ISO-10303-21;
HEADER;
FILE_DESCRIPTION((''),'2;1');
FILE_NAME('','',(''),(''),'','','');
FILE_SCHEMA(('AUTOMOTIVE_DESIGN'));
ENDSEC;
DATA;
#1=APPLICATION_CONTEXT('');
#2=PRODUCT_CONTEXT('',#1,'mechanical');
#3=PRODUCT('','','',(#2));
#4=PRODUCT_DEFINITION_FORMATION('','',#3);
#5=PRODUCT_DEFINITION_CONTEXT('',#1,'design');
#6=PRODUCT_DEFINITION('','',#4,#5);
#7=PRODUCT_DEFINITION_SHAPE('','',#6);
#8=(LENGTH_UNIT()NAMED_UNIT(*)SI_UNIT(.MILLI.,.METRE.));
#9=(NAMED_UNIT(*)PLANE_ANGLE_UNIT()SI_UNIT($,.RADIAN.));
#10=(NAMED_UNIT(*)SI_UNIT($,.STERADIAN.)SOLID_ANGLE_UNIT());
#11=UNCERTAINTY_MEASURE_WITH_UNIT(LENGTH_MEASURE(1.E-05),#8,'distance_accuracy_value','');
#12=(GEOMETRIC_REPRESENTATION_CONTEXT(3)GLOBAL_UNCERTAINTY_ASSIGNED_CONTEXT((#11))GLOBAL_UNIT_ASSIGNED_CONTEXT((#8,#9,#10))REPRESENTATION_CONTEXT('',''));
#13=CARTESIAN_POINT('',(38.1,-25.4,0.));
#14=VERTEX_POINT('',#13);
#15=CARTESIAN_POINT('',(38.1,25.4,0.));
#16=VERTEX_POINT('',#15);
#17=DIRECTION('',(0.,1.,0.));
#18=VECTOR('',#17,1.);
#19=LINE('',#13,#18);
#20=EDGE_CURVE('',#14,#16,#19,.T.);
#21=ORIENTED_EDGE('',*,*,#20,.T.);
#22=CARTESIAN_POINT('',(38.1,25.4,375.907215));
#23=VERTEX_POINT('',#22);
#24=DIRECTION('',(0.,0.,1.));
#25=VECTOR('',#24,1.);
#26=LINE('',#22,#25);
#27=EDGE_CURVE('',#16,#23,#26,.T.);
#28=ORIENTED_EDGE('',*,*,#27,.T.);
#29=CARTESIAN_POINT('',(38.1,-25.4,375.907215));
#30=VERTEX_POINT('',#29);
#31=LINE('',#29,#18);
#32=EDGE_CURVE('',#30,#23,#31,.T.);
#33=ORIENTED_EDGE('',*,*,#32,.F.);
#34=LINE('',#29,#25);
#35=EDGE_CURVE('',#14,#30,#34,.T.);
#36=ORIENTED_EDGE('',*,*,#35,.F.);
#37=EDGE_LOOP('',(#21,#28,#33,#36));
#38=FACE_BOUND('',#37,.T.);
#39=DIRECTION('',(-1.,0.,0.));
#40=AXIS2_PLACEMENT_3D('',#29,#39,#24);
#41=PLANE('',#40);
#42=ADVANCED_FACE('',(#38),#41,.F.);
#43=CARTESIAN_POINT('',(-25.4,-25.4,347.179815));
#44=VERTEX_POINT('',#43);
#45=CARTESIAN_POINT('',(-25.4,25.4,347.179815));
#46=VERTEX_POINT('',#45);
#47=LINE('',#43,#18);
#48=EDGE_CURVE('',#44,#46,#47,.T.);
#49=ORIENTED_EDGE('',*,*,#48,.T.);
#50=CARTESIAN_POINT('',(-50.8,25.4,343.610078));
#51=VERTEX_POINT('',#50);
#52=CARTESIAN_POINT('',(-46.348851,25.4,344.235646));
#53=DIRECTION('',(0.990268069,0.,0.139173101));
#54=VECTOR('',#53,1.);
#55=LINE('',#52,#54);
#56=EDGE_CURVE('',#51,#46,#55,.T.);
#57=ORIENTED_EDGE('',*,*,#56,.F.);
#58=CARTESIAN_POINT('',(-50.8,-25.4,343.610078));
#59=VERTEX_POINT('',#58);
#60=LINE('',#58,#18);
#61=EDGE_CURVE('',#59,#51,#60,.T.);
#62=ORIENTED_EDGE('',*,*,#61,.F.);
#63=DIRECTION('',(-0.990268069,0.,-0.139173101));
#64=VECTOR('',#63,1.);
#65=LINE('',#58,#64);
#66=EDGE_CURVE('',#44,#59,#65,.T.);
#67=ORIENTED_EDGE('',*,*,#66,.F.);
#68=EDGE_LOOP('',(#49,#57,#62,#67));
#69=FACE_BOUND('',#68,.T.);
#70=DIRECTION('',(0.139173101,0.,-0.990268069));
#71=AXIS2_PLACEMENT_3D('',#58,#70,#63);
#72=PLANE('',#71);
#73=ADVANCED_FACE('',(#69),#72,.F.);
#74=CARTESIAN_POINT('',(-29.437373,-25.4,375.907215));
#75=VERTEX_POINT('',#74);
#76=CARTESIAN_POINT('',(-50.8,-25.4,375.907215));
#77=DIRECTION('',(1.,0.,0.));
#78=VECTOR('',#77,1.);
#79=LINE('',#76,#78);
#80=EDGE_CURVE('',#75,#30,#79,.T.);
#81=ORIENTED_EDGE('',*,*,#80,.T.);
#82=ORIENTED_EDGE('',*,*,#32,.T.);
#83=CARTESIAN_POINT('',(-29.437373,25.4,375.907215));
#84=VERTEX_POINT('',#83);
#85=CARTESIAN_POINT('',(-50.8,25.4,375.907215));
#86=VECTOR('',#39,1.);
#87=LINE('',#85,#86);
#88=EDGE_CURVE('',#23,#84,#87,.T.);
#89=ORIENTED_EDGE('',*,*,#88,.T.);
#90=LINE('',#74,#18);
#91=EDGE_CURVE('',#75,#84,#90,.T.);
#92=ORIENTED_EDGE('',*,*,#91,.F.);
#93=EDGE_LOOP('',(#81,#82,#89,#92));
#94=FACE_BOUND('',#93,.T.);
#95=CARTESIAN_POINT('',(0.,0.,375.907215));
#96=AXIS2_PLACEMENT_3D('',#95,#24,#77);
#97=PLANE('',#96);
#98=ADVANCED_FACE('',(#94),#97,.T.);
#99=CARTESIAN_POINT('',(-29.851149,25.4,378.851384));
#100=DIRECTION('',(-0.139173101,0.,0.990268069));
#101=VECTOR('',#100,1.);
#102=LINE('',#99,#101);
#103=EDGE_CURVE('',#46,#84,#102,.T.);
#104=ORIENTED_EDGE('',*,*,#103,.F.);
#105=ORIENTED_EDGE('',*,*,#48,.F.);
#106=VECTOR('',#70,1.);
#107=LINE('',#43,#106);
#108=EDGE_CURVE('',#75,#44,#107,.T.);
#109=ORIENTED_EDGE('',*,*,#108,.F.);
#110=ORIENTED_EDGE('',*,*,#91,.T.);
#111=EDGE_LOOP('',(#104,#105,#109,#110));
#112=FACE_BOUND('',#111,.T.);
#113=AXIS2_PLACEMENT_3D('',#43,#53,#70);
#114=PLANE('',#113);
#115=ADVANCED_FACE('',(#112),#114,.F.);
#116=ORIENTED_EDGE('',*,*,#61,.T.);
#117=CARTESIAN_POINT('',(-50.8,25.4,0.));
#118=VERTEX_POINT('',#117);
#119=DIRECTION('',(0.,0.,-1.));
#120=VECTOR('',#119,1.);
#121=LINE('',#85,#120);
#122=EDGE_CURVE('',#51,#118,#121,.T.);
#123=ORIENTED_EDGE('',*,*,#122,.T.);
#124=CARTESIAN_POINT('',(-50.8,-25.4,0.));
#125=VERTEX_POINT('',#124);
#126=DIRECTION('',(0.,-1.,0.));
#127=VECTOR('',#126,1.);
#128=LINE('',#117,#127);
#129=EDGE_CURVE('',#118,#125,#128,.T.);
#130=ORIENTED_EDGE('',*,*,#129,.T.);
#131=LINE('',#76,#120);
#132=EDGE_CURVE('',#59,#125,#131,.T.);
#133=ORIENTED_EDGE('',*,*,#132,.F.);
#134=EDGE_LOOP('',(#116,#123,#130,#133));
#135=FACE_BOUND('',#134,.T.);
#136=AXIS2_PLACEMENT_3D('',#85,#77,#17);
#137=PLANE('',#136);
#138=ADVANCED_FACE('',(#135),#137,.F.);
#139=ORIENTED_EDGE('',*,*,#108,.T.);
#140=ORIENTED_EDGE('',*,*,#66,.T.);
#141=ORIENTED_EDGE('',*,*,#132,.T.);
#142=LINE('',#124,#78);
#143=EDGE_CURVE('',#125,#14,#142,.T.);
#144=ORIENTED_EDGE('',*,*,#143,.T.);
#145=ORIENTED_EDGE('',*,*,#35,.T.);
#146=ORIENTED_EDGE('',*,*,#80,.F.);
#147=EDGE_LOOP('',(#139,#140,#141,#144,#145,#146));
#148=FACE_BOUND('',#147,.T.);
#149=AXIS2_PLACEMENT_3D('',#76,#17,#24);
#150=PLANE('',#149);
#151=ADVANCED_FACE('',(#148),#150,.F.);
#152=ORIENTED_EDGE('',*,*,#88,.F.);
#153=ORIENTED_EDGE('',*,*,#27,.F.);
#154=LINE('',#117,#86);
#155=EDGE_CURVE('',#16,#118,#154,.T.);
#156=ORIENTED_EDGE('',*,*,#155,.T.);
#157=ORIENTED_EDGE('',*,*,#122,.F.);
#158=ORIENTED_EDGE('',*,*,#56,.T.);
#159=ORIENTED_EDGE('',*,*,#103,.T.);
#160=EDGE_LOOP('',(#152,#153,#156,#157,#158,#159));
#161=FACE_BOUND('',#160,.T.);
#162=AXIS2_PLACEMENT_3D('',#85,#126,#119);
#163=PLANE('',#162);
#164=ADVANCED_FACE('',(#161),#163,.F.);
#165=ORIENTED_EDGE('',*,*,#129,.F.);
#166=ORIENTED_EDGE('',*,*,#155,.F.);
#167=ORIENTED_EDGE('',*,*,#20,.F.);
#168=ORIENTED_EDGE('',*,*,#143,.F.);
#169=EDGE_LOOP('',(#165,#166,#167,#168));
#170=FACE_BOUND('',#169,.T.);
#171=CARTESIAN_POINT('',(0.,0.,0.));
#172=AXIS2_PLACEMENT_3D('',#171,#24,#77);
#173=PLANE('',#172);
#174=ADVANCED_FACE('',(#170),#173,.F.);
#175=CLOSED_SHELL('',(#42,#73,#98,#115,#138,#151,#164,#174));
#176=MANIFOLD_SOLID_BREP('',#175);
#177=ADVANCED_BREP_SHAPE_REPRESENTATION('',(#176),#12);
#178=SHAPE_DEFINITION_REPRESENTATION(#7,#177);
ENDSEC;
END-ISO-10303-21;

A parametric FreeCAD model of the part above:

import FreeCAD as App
import Part
import Sketcher
Q = App.Units.Quantity

doc = App.newDocument("Part")
body = doc.addObject("PartDesign::Body", "Body")

# Sketch on XY plane
sketch1 = body.newObject("Sketcher::SketchObject", "Sketch")
sketch1.AttachmentSupport = (doc.getObject("XY_Plane"), [""])
sketch1.MapMode = "FlatFace"
sketch1.addGeometry(Part.LineSegment(App.Vector(-50.8, 25.4, 0), App.Vector(-50.8, -25.4, 0)), False)
sketch1.addGeometry(Part.LineSegment(App.Vector(-50.8, -25.4, 0), App.Vector(50.8, -25.4, 0)), False)
sketch1.addGeometry(Part.LineSegment(App.Vector(50.8, -25.4, 0), App.Vector(50.8, 25.4, 0)), False)
sketch1.addGeometry(Part.LineSegment(App.Vector(50.8, 25.4, 0), App.Vector(-50.8, 25.4, 0)), False)
sketch1.addConstraint(Sketcher.Constraint("Coincident", 0, 2, 1, 1))
sketch1.addConstraint(Sketcher.Constraint("Coincident", 1, 2, 2, 1))
sketch1.addConstraint(Sketcher.Constraint("Coincident", 2, 2, 3, 1))
sketch1.addConstraint(Sketcher.Constraint("Coincident", 3, 2, 0, 1))
sketch1.addConstraint(Sketcher.Constraint("Vertical", 0))
sketch1.addConstraint(Sketcher.Constraint("Horizontal", 1))
sketch1.addConstraint(Sketcher.Constraint("Vertical", 2))
sketch1.addConstraint(Sketcher.Constraint("Horizontal", 3))
sketch1.addConstraint(Sketcher.Constraint("Symmetric", 0, 2, 2, 2, -1, 1))
sketch1.addConstraint(Sketcher.Constraint("DistanceX", 1, 1, 1, 2, Q("4 in")))
sketch1.addConstraint(Sketcher.Constraint("DistanceY", 0, 2, 0, 1, Q("2 in")))
pad1 = body.newObject("PartDesign::Pad", "Pad")
pad1.Profile = sketch1
pad1.Length = 375.907215

# Sketch on XZ plane
sketch2 = body.newObject("Sketcher::SketchObject", "Sketch001")
sketch2.AttachmentSupport = (doc.getObject("XZ_Plane"), [""])
sketch2.MapMode = "FlatFace"
sketch2.AttachmentOffset = App.Placement(App.Vector(0, 0, -1 * 25.4), App.Rotation())
sketch2.addGeometry(Part.LineSegment(App.Vector(-25.4, 347.179815, 0), App.Vector(-50.8, 343.610078, 0)), False)
sketch2.addGeometry(Part.LineSegment(App.Vector(-50.8, 343.610078, 0), App.Vector(-50.8, 375.907215, 0)), False)
sketch2.addGeometry(Part.LineSegment(App.Vector(-50.8, 375.907215, 0), App.Vector(-29.437373, 375.907215, 0)), False)
sketch2.addGeometry(Part.LineSegment(App.Vector(-29.437373, 375.907215, 0), App.Vector(-25.4, 347.179815, 0)), False)
sketch2.addConstraint(Sketcher.Constraint("Coincident", 0, 2, 1, 1))
sketch2.addConstraint(Sketcher.Constraint("Coincident", 1, 2, 2, 1))
sketch2.addConstraint(Sketcher.Constraint("Coincident", 2, 2, 3, 1))
sketch2.addConstraint(Sketcher.Constraint("Coincident", 3, 2, 0, 1))
sketch2.addConstraint(Sketcher.Constraint("Vertical", 1))
sketch2.addConstraint(Sketcher.Constraint("Horizontal", 2))
sketch2.addConstraint(Sketcher.Constraint("Perpendicular", 0, 3))
sketch2.addConstraint(Sketcher.Constraint("DistanceX", 0, 2, -1, 1, Q("2 in")))
sketch2.addConstraint(Sketcher.Constraint("DistanceX", 3, 2, -1, 1, Q("1 in")))
sketch2.addConstraint(Sketcher.Constraint("Angle", 0, Q("-172 deg")))
sketch2.addConstraint(Sketcher.Constraint("DistanceY", 3, 2, 2, 2, Q("1.131 in")))
sketch2.addConstraint(Sketcher.Constraint("DistanceY", -1, 1, 0, 2, 343.610078))
pocket1 = body.newObject("PartDesign::Pocket", "Pocket")
pocket1.Profile = sketch2
pocket1.Type = "ThroughAll"
pocket1.Midplane = True

# Sketch on XZ plane
sketch3 = body.newObject("Sketcher::SketchObject", "Sketch002")
sketch3.AttachmentSupport = (doc.getObject("XZ_Plane"), [""])
sketch3.MapMode = "FlatFace"
sketch3.AttachmentOffset = App.Placement(App.Vector(0, 0, -1 * 25.4), App.Rotation())
sketch3.addGeometry(Part.LineSegment(App.Vector(38.1, 0, 0), App.Vector(38.1, 375.907215, 0)), False)
sketch3.addGeometry(Part.LineSegment(App.Vector(38.1, 375.907215, 0), App.Vector(50.8, 375.907215, 0)), False)
sketch3.addGeometry(Part.LineSegment(App.Vector(50.8, 375.907215, 0), App.Vector(50.8, 0, 0)), False)
sketch3.addGeometry(Part.LineSegment(App.Vector(50.8, 0, 0), App.Vector(38.1, 0, 0)), False)
sketch3.addConstraint(Sketcher.Constraint("Coincident", 0, 2, 1, 1))
sketch3.addConstraint(Sketcher.Constraint("Coincident", 1, 2, 2, 1))
sketch3.addConstraint(Sketcher.Constraint("Coincident", 2, 2, 3, 1))
sketch3.addConstraint(Sketcher.Constraint("Coincident", 3, 2, 0, 1))
sketch3.addConstraint(Sketcher.Constraint("Vertical", 0))
sketch3.addConstraint(Sketcher.Constraint("Horizontal", 1))
sketch3.addConstraint(Sketcher.Constraint("Vertical", 2))
sketch3.addConstraint(Sketcher.Constraint("Horizontal", 3))
sketch3.addConstraint(Sketcher.Constraint("PointOnObject", 2, 2, -1))
sketch3.addConstraint(Sketcher.Constraint("DistanceX", 1, 1, 1, 2, Q("0.5 in")))
sketch3.addConstraint(Sketcher.Constraint("DistanceX", -1, 1, 1, 2, Q("2 in")))
sketch3.addConstraint(Sketcher.Constraint("DistanceY", 0, 1, 0, 2, 375.907215))
pocket2 = body.newObject("PartDesign::Pocket", "Pocket001")
pocket2.Profile = sketch3
pocket2.Type = "ThroughAll"
pocket2.Midplane = True

doc.recompute()
